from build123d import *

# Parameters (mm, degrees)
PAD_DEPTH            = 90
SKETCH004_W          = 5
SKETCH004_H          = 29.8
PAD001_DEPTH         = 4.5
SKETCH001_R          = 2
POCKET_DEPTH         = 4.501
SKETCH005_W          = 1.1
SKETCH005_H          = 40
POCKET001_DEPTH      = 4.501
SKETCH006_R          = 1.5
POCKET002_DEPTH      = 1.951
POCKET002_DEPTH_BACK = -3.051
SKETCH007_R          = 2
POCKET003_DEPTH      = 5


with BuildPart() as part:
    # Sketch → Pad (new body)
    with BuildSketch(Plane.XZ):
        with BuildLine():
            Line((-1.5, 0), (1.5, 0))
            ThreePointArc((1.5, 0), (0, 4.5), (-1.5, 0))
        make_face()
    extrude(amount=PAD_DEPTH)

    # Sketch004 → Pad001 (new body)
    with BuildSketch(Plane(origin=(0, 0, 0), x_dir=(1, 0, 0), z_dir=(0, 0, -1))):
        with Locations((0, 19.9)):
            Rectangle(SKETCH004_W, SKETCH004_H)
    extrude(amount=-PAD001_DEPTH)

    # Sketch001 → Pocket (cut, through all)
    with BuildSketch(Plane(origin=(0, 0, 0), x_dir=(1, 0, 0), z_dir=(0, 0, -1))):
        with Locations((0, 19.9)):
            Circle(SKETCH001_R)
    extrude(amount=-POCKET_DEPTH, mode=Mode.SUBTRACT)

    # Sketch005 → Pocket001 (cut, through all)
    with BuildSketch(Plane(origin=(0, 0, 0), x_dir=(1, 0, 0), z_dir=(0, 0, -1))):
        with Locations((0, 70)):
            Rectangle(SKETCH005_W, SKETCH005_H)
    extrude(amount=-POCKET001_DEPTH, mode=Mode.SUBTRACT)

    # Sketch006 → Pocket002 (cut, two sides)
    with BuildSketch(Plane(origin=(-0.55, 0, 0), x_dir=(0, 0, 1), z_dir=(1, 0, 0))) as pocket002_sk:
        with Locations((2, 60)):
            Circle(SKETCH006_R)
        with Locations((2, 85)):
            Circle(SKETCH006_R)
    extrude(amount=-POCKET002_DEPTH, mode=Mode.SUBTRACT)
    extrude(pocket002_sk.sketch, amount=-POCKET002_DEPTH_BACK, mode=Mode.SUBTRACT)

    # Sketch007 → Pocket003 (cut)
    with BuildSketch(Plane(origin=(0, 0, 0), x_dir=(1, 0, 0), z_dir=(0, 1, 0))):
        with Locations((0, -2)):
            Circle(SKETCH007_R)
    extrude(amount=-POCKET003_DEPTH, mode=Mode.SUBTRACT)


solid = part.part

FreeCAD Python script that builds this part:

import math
import FreeCAD as App
import Part
import Sketcher
Q = App.Units.Quantity

doc = App.newDocument("Part")
body = doc.addObject("PartDesign::Body", "Body")

# Sketch on XZ plane
sketch1 = doc.addObject("Sketcher::SketchObject", "Sketch")
body.addObject(sketch1)
sketch1.AttachmentSupport = (doc.XZ_Plane, [""])
sketch1.MapMode = "FlatFace"
sketch1.addGeometry(Part.LineSegment(App.Vector(-1.5, 0, 0), App.Vector(1.5, 0, 0)), False)
sketch1.addGeometry(Part.ArcOfCircle(Part.Circle(App.Vector(0, 2, 0), App.Vector(0, 0, 1), 2.5), math.radians(-53.130102), math.radians(233.130102)), False)
sketch1.addConstraint(Sketcher.Constraint("Coincident", 0, 1, 1, 2))
sketch1.addConstraint(Sketcher.Constraint("Coincident", 1, 1, 0, 2))
sketch1.addConstraint(Sketcher.Constraint("Horizontal", 0))
sketch1.addConstraint(Sketcher.Constraint("Symmetric", 0, 1, 1, 1, -1, 1))
sketch1.addConstraint(Sketcher.Constraint("Radius", 1, Q("2.5 mm")))
sketch1.addConstraint(Sketcher.Constraint("DistanceX", 0, 1, 0, 2, Q("3 mm")))
pad1 = doc.addObject("PartDesign::Pad", "Pad")
body.addObject(pad1)
pad1.Profile = sketch1
pad1.Length = 90

# Sketch on XY plane
sketch2 = doc.addObject("Sketcher::SketchObject", "Sketch001")
body.addObject(sketch2)
sketch2.AttachmentSupport = (doc.XY_Plane, [""])
sketch2.MapMode = "FlatFace"
sketch2.addGeometry(Part.LineSegment(App.Vector(-2.5, -34.8, 0), App.Vector(-2.5, -5, 0)), False)
sketch2.addGeometry(Part.LineSegment(App.Vector(-2.5, -5, 0), App.Vector(2.5, -5, 0)), False)
sketch2.addGeometry(Part.LineSegment(App.Vector(2.5, -5, 0), App.Vector(2.5, -34.8, 0)), False)
sketch2.addGeometry(Part.LineSegment(App.Vector(2.5, -34.8, 0), App.Vector(-2.5, -34.8, 0)), False)
sketch2.addConstraint(Sketcher.Constraint("Coincident", 0, 2, 1, 1))
sketch2.addConstraint(Sketcher.Constraint("Coincident", 1, 2, 2, 1))
sketch2.addConstraint(Sketcher.Constraint("Coincident", 2, 2, 3, 1))
sketch2.addConstraint(Sketcher.Constraint("Coincident", 3, 2, 0, 1))
sketch2.addConstraint(Sketcher.Constraint("Vertical", 0))
sketch2.addConstraint(Sketcher.Constraint("Horizontal", 1))
sketch2.addConstraint(Sketcher.Constraint("Vertical", 2))
sketch2.addConstraint(Sketcher.Constraint("Horizontal", 3))
sketch2.addConstraint(Sketcher.Constraint("DistanceX", 1, 1, 1, 2, Q("5 mm")))
sketch2.addConstraint(Sketcher.Constraint("DistanceY", 0, 1, 0, 2, Q("29.8 mm")))
sketch2.addConstraint(Sketcher.Constraint("DistanceY", 0, 2, -1, 1, Q("5 mm")))
sketch2.addConstraint(Sketcher.Constraint("DistanceX", 0, 2, -1, 1, Q("2.5 mm")))
pad2 = doc.addObject("PartDesign::Pad", "Pad001")
body.addObject(pad2)
pad2.Profile = sketch2
pad2.Length = 4.5

# Sketch on XY plane
sketch3 = doc.addObject("Sketcher::SketchObject", "Sketch002")
body.addObject(sketch3)
sketch3.AttachmentSupport = (doc.XY_Plane, [""])
sketch3.MapMode = "FlatFace"
sketch3.addGeometry(Part.Circle(App.Vector(0, -19.9, 0), App.Vector(0, 0, 1), 2), False)
sketch3.addConstraint(Sketcher.Constraint("PointOnObject", 0, 3, -2))
sketch3.addConstraint(Sketcher.Constraint("Diameter", 0, Q("4 mm")))
sketch3.addConstraint(Sketcher.Constraint("DistanceY", 0, 3, -1, 1, Q("19.9 mm")))
pocket1 = doc.addObject("PartDesign::Pocket", "Pocket")
body.addObject(pocket1)
pocket1.Profile = sketch3
pocket1.Type = "ThroughAll"
pocket1.Reversed = True

# Sketch on XY plane
sketch4 = doc.addObject("Sketcher::SketchObject", "Sketch003")
body.addObject(sketch4)
sketch4.AttachmentSupport = (doc.XY_Plane, [""])
sketch4.MapMode = "FlatFace"
sketch4.addGeometry(Part.LineSegment(App.Vector(-0.55, -90, 0), App.Vector(-0.55, -50, 0)), False)
sketch4.addGeometry(Part.LineSegment(App.Vector(-0.55, -50, 0), App.Vector(0.55, -50, 0)), False)
sketch4.addGeometry(Part.LineSegment(App.Vector(0.55, -50, 0), App.Vector(0.55, -90, 0)), False)
sketch4.addGeometry(Part.LineSegment(App.Vector(0.55, -90, 0), App.Vector(-0.55, -90, 0)), False)
sketch4.addConstraint(Sketcher.Constraint("Coincident", 0, 2, 1, 1))
sketch4.addConstraint(Sketcher.Constraint("Coincident", 1, 2, 2, 1))
sketch4.addConstraint(Sketcher.Constraint("Coincident", 2, 2, 3, 1))
sketch4.addConstraint(Sketcher.Constraint("Coincident", 3, 2, 0, 1))
sketch4.addConstraint(Sketcher.Constraint("Vertical", 0))
sketch4.addConstraint(Sketcher.Constraint("Horizontal", 1))
sketch4.addConstraint(Sketcher.Constraint("Vertical", 2))
sketch4.addConstraint(Sketcher.Constraint("Horizontal", 3))
sketch4.addConstraint(Sketcher.Constraint("DistanceY", 0, 1, 0, 2, Q("40 mm")))
sketch4.addConstraint(Sketcher.Constraint("DistanceX", 1, 1, 1, 2, Q("1.1 mm")))
sketch4.addConstraint(Sketcher.Constraint("DistanceY", 0, 2, -1, 1, Q("50 mm")))
sketch4.addConstraint(Sketcher.Constraint("DistanceX", 0, 2, -1, 1, Q("0.55 mm")))
pocket2 = doc.addObject("PartDesign::Pocket", "Pocket001")
body.addObject(pocket2)
pocket2.Profile = sketch4
pocket2.Type = "ThroughAll"
pocket2.Reversed = True

# Sketch on YZ plane
sketch5 = doc.addObject("Sketcher::SketchObject", "Sketch004")
body.addObject(sketch5)
sketch5.AttachmentSupport = (doc.YZ_Plane, [""])
sketch5.MapMode = "FlatFace"
sketch5.AttachmentOffset = App.Placement(App.Vector(0, 0, -0.55), App.Rotation())
sketch5.addGeometry(Part.Circle(App.Vector(-60, 2, 0), App.Vector(0, 0, 1), 1.5), False)
sketch5.addGeometry(Part.Circle(App.Vector(-85, 2, 0), App.Vector(0, 0, 1), 1.5), False)
sketch5.addConstraint(Sketcher.Constraint("Equal", 0, 1))
sketch5.addConstraint(Sketcher.Constraint("Horizontal", 0, 3, 1, 3))
sketch5.addConstraint(Sketcher.Constraint("Diameter", 0, Q("3 mm")))
sketch5.addConstraint(Sketcher.Constraint("DistanceX", 0, 3, -1, 1, Q("60 mm")))
sketch5.addConstraint(Sketcher.Constraint("DistanceY", -1, 1, 0, 3, Q("2 mm")))
sketch5.addConstraint(Sketcher.Constraint("DistanceX", 1, 3, -1, 1, Q("85 mm")))
pocket3 = doc.addObject("PartDesign::Pocket", "Pocket002")
body.addObject(pocket3)
pocket3.Profile = sketch5
pocket3.Type = "ThroughAll"
pocket3.Midplane = True

# Sketch on XZ plane
sketch6 = doc.addObject("Sketcher::SketchObject", "Sketch005")
body.addObject(sketch6)
sketch6.AttachmentSupport = (doc.XZ_Plane, [""])
sketch6.MapMode = "FlatFace"
sketch6.addGeometry(Part.Circle(App.Vector(0, 2, 0), App.Vector(0, 0, 1), 2), False)
sketch6.addConstraint(Sketcher.Constraint("PointOnObject", 0, 3, -2))
sketch6.addConstraint(Sketcher.Constraint("Diameter", 0, Q("4 mm")))
sketch6.addConstraint(Sketcher.Constraint("DistanceY", -1, 1, 0, 3, Q("2 mm")))
pocket4 = doc.addObject("PartDesign::Pocket", "Pocket003")
body.addObject(pocket4)
pocket4.Profile = sketch6
pocket4.Length = 5
pocket4.Reversed = True

doc.recompute()
